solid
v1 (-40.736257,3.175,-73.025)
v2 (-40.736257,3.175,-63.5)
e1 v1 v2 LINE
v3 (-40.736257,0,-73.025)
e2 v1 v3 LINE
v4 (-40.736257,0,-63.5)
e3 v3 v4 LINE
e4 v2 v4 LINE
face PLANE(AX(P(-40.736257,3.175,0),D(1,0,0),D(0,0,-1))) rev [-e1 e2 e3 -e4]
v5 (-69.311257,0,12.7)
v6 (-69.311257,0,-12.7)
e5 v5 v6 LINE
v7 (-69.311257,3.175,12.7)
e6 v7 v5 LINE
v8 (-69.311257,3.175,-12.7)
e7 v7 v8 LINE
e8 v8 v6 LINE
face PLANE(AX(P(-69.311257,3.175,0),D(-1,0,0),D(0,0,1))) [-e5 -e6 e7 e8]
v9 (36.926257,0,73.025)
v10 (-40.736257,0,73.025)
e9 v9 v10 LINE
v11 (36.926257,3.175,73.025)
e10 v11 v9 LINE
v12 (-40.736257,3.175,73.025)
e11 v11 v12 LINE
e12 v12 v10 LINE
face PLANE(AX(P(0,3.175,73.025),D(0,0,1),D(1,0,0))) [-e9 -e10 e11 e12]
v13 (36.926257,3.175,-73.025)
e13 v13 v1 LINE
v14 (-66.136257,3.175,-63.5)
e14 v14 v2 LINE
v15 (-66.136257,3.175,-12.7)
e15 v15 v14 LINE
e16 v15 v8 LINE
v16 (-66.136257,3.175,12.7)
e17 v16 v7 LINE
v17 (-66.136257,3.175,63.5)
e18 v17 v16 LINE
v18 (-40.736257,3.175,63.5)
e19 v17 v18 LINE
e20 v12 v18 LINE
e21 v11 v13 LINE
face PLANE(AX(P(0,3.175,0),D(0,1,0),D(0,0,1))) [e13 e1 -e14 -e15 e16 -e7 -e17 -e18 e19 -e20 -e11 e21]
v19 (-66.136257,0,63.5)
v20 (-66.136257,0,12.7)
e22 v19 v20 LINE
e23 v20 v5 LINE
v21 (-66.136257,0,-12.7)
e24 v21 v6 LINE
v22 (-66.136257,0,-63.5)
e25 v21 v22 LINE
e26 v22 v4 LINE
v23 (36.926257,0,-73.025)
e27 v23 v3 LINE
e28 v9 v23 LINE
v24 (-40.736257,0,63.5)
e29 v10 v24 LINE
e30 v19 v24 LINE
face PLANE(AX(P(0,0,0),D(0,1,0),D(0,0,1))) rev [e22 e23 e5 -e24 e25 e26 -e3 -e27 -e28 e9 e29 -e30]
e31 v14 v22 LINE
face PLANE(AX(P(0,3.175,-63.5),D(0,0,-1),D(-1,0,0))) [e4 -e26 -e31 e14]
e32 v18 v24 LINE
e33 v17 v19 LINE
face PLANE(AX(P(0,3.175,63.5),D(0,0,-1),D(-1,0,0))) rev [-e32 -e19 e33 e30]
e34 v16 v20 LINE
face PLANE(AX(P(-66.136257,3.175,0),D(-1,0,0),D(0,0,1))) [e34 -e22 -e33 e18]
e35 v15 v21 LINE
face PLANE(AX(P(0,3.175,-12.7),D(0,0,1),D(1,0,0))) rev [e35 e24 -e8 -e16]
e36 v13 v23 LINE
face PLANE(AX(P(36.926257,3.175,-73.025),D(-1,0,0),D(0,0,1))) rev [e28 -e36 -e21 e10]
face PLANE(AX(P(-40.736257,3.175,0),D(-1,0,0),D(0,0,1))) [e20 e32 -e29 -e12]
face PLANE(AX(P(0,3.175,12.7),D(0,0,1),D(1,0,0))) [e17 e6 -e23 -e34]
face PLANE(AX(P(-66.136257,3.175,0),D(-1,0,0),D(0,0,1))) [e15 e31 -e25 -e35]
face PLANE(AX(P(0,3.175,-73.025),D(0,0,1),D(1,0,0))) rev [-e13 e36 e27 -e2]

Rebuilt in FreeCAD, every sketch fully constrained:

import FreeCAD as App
import Part
import Sketcher
from FreeCAD import Vector
Q = App.Units.Quantity

doc = App.newDocument("Part")
body = doc.addObject("PartDesign::Body", "Body")

# Sketch on XZ plane
sketch1 = doc.addObject("Sketcher::SketchObject", "Sketch")
body.addObject(sketch1)
sketch1.AttachmentSupport = (doc.XZ_Plane, [""])
sketch1.MapMode = "FlatFace"
sketch1.addGeometry([
    Part.LineSegment(Vector(-40.736257, 73.025, 0), Vector(59.786257, 73.025, 0)),  # 0
    Part.LineSegment(Vector(59.786257, 73.025, 0), Vector(59.786257, 63.5, 0)),  # 1
    Part.LineSegment(Vector(59.786257, 63.5, 0), Vector(66.136257, 63.5, 0)),  # 2
    Part.LineSegment(Vector(66.136257, 63.5, 0), Vector(66.136257, -63.5, 0)),  # 3
    Part.LineSegment(Vector(66.136257, -63.5, 0), Vector(59.786257, -63.5, 0)),  # 4
    Part.LineSegment(Vector(59.786257, -63.5, 0), Vector(59.786257, -73.025, 0)),  # 5
    Part.LineSegment(Vector(59.786257, -73.025, 0), Vector(-40.736257, -73.025, 0)),  # 6
    Part.LineSegment(Vector(-40.736257, -73.025, 0), Vector(-40.736257, -63.5, 0)),  # 7
    Part.LineSegment(Vector(-40.736257, -63.5, 0), Vector(-66.136257, -63.5, 0)),  # 8
    Part.LineSegment(Vector(-66.136257, -63.5, 0), Vector(-66.136257, -12.7, 0)),  # 9
    Part.LineSegment(Vector(-66.136257, -12.7, 0), Vector(-69.311257, -12.7, 0)),  # 10
    Part.LineSegment(Vector(-69.311257, -12.7, 0), Vector(-69.311257, 12.7, 0)),  # 11
    Part.LineSegment(Vector(-69.311257, 12.7, 0), Vector(-66.136257, 12.7, 0)),  # 12
    Part.LineSegment(Vector(-66.136257, 12.7, 0), Vector(-66.136257, 63.5, 0)),  # 13
    Part.LineSegment(Vector(-66.136257, 63.5, 0), Vector(-40.736257, 63.5, 0)),  # 14
    Part.LineSegment(Vector(-40.736257, 63.5, 0), Vector(-40.736257, 73.025, 0)),  # 15
], False)
sketch1.addConstraint([
    Sketcher.Constraint("Coincident", 0, 2, 1, 1),
    Sketcher.Constraint("Coincident", 1, 2, 2, 1),
    Sketcher.Constraint("Coincident", 2, 2, 3, 1),
    Sketcher.Constraint("Coincident", 3, 2, 4, 1),
    Sketcher.Constraint("Coincident", 4, 2, 5, 1),
    Sketcher.Constraint("Coincident", 5, 2, 6, 1),
    Sketcher.Constraint("Coincident", 6, 2, 7, 1),
    Sketcher.Constraint("Coincident", 7, 2, 8, 1),
    Sketcher.Constraint("Coincident", 8, 2, 9, 1),
    Sketcher.Constraint("Coincident", 9, 2, 10, 1),
    Sketcher.Constraint("Coincident", 10, 2, 11, 1),
    Sketcher.Constraint("Coincident", 11, 2, 12, 1),
    Sketcher.Constraint("Coincident", 12, 2, 13, 1),
    Sketcher.Constraint("Coincident", 13, 2, 14, 1),
    Sketcher.Constraint("Coincident", 14, 2, 15, 1),
    Sketcher.Constraint("Coincident", 15, 2, 0, 1),
    Sketcher.Constraint("Horizontal", 0),
    Sketcher.Constraint("Vertical", 1),
    Sketcher.Constraint("Horizontal", 2),
    Sketcher.Constraint("Vertical", 3),
    Sketcher.Constraint("Horizontal", 4),
    Sketcher.Constraint("Vertical", 5),
    Sketcher.Constraint("Horizontal", 6),
    Sketcher.Constraint("Vertical", 7),
    Sketcher.Constraint("Horizontal", 8),
    Sketcher.Constraint("Vertical", 9),
    Sketcher.Constraint("Horizontal", 10),
    Sketcher.Constraint("Vertical", 11),
    Sketcher.Constraint("Horizontal", 12),
    Sketcher.Constraint("Vertical", 13),
    Sketcher.Constraint("Horizontal", 14),
    Sketcher.Constraint("Vertical", 15),
    Sketcher.Constraint("Symmetric", 2, 2, 8, 2, -1, 1),
    Sketcher.Constraint("Symmetric", 3, 2, 13, 2, -1, 1),
    Sketcher.Constraint("Symmetric", 1, 2, 4, 2, -1),
    Sketcher.Constraint("Symmetric", 6, 2, 15, 2, -1),
    Sketcher.Constraint("Equal", 14, 11),
    Sketcher.Constraint("Equal", 9, 13),
    Sketcher.Constraint("DistanceX", 8, 2, 8, 1, Q("1 in")),
    Sketcher.Constraint("DistanceY", 3, 2, 3, 1, Q("5 in")),
    Sketcher.Constraint("DistanceX", 2, 1, 2, 2, Q("0.25 in")),
    Sketcher.Constraint("DistanceX", 10, 2, 10, 1, Q("0.125 in")),
    Sketcher.Constraint("DistanceY", 1, 2, 1, 1, Q("0.375 in")),
    Sketcher.Constraint("DistanceX", 0, 1, 0, 2, Q("100.522513 mm")),
])
pad1 = doc.addObject("PartDesign::Pad", "Pad")
body.addObject(pad1)
pad1.Profile = sketch1
pad1.Length = Q("0.125 in")
pad1.Reversed = True

# Sketch on XZ plane
sketch2 = doc.addObject("Sketcher::SketchObject", "Sketch001")
body.addObject(sketch2)
sketch2.AttachmentSupport = (doc.XZ_Plane, [""])
sketch2.MapMode = "FlatFace"
sketch2.addGeometry([
    Part.LineSegment(Vector(36.926257, 73.025, 0), Vector(36.926257, -73.025, 0)),
    Part.LineSegment(Vector(36.926257, -73.025, 0), Vector(66.136257, -73.025, 0)),
    Part.LineSegment(Vector(66.136257, -73.025, 0), Vector(66.136257, 73.025, 0)),
    Part.LineSegment(Vector(66.136257, 73.025, 0), Vector(36.926257, 73.025, 0)),
], False)
sketch2.addConstraint([
    Sketcher.Constraint("Coincident", 0, 2, 1, 1),
    Sketcher.Constraint("Coincident", 1, 2, 2, 1),
    Sketcher.Constraint("Coincident", 2, 2, 3, 1),
    Sketcher.Constraint("Coincident", 3, 2, 0, 1),
    Sketcher.Constraint("Vertical", 0),
    Sketcher.Constraint("Horizontal", 1),
    Sketcher.Constraint("Vertical", 2),
    Sketcher.Constraint("Horizontal", 3),
    Sketcher.Constraint("DistanceX", 1, 1, 1, 2, Q("1.15 in")),
    Sketcher.Constraint("DistanceY", 0, 2, 0, 1, Q("5.75 in")),
    Sketcher.Constraint("DistanceY", 0, 2, -1, 1, Q("2.875 in")),
    Sketcher.Constraint("DistanceX", -1, 1, 0, 2, Q("36.926257 mm")),
])
pocket1 = doc.addObject("PartDesign::Pocket", "Pocket")
body.addObject(pocket1)
pocket1.Profile = sketch2
pocket1.Type = "ThroughAll"

doc.recompute()
